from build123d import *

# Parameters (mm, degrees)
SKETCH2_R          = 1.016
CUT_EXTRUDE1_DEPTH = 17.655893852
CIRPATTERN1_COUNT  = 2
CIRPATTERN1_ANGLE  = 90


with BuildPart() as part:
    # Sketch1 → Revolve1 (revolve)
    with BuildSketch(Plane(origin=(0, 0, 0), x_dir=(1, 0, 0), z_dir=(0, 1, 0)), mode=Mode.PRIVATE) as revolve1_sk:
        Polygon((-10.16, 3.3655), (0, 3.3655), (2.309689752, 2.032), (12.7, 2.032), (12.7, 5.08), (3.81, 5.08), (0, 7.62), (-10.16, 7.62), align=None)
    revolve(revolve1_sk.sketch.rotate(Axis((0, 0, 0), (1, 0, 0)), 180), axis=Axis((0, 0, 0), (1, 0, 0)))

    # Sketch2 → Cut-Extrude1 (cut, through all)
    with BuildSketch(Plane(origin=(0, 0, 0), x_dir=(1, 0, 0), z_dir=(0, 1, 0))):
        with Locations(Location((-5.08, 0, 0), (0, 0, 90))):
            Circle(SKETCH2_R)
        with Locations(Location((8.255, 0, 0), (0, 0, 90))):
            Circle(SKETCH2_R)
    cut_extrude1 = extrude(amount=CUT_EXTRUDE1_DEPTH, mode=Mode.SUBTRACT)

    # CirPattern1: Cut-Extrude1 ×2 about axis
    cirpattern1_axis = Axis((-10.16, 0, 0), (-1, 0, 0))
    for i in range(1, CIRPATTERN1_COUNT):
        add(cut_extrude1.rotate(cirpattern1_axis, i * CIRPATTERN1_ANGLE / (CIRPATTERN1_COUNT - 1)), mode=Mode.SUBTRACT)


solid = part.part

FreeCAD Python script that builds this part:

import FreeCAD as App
import Part
import Sketcher
Q = App.Units.Quantity


def add_polygon(sketch, points):
    """Adds a closed chain of lines whose ends are joined by coincident constraints."""
    first, n = sketch.GeometryCount, len(points)
    for a, b in zip(points, points[1:] + points[:1]):
        sketch.addGeometry(Part.LineSegment(App.Vector(*a, 0), App.Vector(*b, 0)), False)
    for i in range(n):
        sketch.addConstraint(Sketcher.Constraint("Coincident", first + i, 2, first + (i + 1) % n, 1))

doc = App.newDocument("Part")
body = doc.addObject("PartDesign::Body", "Body")

# Sketch on XZ plane
sketch1 = body.newObject("Sketcher::SketchObject", "Sketch")
sketch1.AttachmentSupport = (doc.getObject("XZ_Plane"), [""])
sketch1.MapMode = "FlatFace"
add_polygon(sketch1, [(-10.2, -3.4), (0, -3.4), (2.3, -2), (12.7, -2), (12.7, -5.1), (3.8, -5.1), (0, -7.6), (-10.2, -7.6)])  # lines 0-7
sketch1.addConstraint([
    Sketcher.Constraint("Horizontal", 0),
    Sketcher.Constraint("Horizontal", 2),
    Sketcher.Constraint("Vertical", 3),
    Sketcher.Constraint("Horizontal", 4),
    Sketcher.Constraint("Horizontal", 6),
    Sketcher.Constraint("Vertical", 7),
    Sketcher.Constraint("PointOnObject", 0, 2, -2),
    Sketcher.Constraint("PointOnObject", 5, 2, -2),
    Sketcher.Constraint("DistanceX", 0, 1, 0, 2, Q("0.4 in")),
    Sketcher.Constraint("Angle", 1, Q("30 deg")),
    Sketcher.Constraint("DistanceX", 4, 2, 4, 1, Q("0.35 in")),
    Sketcher.Constraint("DistanceY", 3, 2, 3, 1, Q("0.12 in")),
    Sketcher.Constraint("DistanceX", -1, 1, 2, 2, Q("0.5 in")),
    Sketcher.Constraint("DistanceY", 3, 2, -1, 1, Q("0.2 in")),
    Sketcher.Constraint("DistanceY", 5, 2, -1, 1, Q("0.3 in")),
    Sketcher.Constraint("Distance", 1, Q("0.105 in")),
])
revolution = body.newObject("PartDesign::Revolution", "Revolution")
revolution.Profile = sketch1
revolution.ReferenceAxis = (sketch1, ["H_Axis"])
revolution.Angle = 360

# Sketch on XZ plane
sketch2 = body.newObject("Sketcher::SketchObject", "Sketch001")
sketch2.AttachmentSupport = (doc.getObject("XZ_Plane"), [""])
sketch2.MapMode = "FlatFace"
sketch2.addGeometry([
    Part.Circle(App.Vector(-5.1, 0, 0), App.Vector(0, 0, 1), 1),
    Part.Circle(App.Vector(8.3, 0, 0), App.Vector(0, 0, 1), 1),
], False)
sketch2.addConstraint([
    Sketcher.Constraint("Equal", 0, 1),
    Sketcher.Constraint("PointOnObject", 0, 3, -1),
    Sketcher.Constraint("PointOnObject", 1, 3, -1),
    Sketcher.Constraint("Diameter", 0, Q("0.08 in")),
    Sketcher.Constraint("DistanceX", 0, 3, -1, 1, Q("0.2 in")),
    Sketcher.Constraint("DistanceX", -1, 1, 1, 3, Q("0.325 in")),
])
pocket1 = body.newObject("PartDesign::Pocket", "Pocket")
pocket1.Profile = sketch2
pocket1.Type = "ThroughAll"
doc.recompute()

polarpattern = body.newObject("PartDesign::PolarPattern", "PolarPattern")
polarpattern.Originals = [pocket1]
polarpattern.Axis = (doc.getObject("X_Axis"), [""])
polarpattern.Angle = 90
polarpattern.Occurrences = 2
polarpattern.Reversed = True
body.Tip = polarpattern

doc.recompute()
